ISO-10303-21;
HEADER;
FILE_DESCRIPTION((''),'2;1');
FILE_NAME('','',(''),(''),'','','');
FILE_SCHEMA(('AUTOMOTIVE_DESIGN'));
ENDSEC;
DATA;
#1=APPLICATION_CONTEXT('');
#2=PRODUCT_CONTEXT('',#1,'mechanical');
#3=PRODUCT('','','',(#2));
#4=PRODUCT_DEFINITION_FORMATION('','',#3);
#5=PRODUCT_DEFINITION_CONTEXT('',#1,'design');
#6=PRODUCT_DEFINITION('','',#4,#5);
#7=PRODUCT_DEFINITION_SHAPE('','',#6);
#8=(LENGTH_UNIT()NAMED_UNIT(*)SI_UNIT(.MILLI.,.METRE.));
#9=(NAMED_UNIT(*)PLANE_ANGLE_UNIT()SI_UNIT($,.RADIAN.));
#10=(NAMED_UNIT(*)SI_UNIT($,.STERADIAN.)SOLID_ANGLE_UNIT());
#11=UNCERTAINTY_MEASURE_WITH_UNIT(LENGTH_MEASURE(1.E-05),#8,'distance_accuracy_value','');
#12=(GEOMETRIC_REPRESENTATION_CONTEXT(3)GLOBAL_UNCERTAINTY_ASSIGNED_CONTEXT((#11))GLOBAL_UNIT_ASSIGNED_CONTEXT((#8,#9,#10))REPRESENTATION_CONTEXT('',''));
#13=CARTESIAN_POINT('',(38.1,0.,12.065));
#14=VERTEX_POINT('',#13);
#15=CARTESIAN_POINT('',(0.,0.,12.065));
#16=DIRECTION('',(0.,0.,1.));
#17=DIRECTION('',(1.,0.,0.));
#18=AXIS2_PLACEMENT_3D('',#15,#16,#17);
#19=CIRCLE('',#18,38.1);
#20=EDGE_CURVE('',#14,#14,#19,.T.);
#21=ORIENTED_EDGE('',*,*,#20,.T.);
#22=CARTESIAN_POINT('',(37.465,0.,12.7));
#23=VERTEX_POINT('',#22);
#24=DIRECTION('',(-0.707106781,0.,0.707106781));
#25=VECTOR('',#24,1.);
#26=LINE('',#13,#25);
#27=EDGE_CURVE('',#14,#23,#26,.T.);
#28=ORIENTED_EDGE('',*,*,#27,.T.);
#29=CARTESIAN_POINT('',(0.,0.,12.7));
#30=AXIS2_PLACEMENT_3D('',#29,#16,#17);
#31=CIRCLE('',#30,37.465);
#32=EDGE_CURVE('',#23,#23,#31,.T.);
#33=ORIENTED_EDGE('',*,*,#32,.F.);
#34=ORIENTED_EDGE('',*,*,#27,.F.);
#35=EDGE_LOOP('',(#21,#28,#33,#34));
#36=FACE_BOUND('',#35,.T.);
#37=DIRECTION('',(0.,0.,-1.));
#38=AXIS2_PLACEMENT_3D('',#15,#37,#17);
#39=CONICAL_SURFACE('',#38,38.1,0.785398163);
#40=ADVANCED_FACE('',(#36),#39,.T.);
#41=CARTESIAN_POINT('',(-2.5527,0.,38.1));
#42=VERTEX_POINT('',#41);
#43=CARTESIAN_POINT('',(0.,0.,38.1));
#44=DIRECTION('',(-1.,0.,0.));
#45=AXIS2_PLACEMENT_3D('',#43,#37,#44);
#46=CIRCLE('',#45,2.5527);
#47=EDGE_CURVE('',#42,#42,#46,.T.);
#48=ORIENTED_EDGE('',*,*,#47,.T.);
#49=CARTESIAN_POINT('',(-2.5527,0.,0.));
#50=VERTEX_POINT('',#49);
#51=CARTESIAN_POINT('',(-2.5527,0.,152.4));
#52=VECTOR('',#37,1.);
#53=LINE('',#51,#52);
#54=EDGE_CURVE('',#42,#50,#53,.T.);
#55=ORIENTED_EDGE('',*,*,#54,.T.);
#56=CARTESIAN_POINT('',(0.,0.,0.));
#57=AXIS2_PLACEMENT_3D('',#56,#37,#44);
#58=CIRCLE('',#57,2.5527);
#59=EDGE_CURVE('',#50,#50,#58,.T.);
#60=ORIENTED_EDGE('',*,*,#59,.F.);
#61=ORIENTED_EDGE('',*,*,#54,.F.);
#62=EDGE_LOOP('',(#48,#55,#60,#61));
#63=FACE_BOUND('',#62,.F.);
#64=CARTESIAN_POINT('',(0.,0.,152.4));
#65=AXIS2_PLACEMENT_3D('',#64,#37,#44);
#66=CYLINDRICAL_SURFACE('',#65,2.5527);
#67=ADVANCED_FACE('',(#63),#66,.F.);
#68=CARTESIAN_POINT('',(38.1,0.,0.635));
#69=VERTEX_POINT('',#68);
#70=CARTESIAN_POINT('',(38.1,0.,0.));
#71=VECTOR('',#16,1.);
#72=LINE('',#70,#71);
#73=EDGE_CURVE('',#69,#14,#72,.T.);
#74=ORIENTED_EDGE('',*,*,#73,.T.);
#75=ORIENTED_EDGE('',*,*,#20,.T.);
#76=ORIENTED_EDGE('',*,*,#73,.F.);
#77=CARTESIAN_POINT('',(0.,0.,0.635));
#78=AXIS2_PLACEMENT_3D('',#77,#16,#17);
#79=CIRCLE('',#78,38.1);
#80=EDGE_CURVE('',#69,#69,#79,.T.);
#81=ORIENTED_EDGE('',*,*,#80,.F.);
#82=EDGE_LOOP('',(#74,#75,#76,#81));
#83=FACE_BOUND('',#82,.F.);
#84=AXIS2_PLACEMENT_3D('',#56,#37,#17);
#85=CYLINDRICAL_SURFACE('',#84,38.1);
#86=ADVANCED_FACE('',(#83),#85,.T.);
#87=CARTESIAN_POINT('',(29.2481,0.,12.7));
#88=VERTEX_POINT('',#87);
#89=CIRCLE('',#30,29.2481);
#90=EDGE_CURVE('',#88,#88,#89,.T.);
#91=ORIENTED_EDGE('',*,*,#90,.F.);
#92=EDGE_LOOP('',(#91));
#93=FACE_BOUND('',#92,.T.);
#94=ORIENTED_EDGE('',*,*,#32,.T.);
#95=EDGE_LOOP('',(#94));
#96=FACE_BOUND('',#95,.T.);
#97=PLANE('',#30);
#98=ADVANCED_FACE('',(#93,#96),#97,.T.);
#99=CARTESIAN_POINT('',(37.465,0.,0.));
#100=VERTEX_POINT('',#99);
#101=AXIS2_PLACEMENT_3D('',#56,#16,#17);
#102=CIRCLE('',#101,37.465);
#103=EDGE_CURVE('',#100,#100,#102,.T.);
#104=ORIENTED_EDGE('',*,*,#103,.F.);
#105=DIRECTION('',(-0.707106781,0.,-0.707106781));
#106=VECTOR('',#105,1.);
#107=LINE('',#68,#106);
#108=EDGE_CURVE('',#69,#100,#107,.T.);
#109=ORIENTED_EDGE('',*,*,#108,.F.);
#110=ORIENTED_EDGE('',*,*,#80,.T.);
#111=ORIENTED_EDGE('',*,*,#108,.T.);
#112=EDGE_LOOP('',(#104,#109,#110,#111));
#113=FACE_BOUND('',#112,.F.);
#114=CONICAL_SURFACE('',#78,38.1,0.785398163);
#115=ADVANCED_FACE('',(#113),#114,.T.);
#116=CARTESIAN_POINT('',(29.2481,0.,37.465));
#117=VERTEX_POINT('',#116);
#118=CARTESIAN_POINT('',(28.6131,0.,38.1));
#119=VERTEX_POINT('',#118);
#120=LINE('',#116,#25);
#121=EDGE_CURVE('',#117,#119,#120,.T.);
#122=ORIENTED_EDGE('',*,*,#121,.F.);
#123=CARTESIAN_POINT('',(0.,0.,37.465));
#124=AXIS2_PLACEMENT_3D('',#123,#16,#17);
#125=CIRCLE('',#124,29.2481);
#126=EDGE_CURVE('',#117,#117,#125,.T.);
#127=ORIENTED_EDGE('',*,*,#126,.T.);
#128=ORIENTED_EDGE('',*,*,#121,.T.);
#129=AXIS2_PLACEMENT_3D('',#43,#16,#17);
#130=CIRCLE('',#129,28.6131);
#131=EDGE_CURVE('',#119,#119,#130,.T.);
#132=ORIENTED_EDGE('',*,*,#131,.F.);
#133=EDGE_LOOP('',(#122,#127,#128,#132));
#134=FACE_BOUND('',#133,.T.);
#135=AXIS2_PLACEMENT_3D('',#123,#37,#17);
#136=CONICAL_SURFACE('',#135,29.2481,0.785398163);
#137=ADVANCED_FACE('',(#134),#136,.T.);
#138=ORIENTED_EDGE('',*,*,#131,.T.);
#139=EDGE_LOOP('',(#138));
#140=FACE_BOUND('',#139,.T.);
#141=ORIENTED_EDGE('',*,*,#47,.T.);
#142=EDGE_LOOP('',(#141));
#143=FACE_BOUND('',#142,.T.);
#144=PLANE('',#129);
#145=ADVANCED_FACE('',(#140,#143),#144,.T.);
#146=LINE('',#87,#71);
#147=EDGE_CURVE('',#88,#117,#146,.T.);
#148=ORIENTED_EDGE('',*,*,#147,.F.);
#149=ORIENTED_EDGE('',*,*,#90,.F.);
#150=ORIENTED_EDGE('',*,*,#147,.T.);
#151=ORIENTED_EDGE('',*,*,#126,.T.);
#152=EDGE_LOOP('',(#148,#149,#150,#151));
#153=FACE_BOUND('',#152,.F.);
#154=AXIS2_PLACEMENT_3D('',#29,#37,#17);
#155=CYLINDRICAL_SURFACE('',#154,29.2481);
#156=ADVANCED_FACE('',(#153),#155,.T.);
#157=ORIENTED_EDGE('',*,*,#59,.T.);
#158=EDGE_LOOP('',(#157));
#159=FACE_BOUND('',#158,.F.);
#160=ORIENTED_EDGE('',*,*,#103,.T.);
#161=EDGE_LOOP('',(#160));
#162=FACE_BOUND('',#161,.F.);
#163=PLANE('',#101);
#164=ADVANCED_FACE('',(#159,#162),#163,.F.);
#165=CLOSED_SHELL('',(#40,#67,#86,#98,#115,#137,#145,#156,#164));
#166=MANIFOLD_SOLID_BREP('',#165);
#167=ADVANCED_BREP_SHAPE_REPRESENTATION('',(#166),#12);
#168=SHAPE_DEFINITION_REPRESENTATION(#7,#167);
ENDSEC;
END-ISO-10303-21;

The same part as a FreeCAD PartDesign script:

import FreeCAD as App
import Part
import Sketcher

V = App.Vector
Q = App.Units.Quantity


def edges_at(feature, points):
    """Names of the edges that pass closest to the given points."""
    edges = feature.Shape.Edges
    near = lambda p: min(range(len(edges)), key=lambda i: edges[i].distToShape(Part.Vertex(*p))[0])
    return sorted({f"Edge{near(p) + 1}" for p in points})

doc = App.newDocument("Part")
params = doc.addObject("Spreadsheet::Sheet", "Params")
for row, (alias, value) in enumerate([
    ("sketch1_diameter", "3 in"),
    ("pad1_length", "0.5 in"),
    ("sketch2_diameter", "2.303 in"),
    ("pad2_length", "1 in"),
    ("chamfer_size", "0.025 in"),
    ("sketch3_diameter", "0.201 in"),
    ("hole_diameter", "0.201 in"),
], start=1):
    params.set(f"A{row}", alias)
    params.set(f"B{row}", "=" + value)
    params.setAlias(f"B{row}", alias)

body = doc.addObject("PartDesign::Body", "Body")

sketch1 = body.newObject("Sketcher::SketchObject", "Sketch")
sketch1.AttachmentSupport = (doc.getObject("XY_Plane"), [""])
sketch1.MapMode = "FlatFace"
sketch1.addGeometry(Part.Circle(V(0, 0, 0), V(0, 0, 1), 38), False)
sketch1.addConstraint([
    Sketcher.Constraint("Coincident", 0, 3, -1, 1),
    Sketcher.Constraint("Diameter", 0, Q("3 in")),
])
sketch1.setExpression("Constraints[1]", "Params.sketch1_diameter")
pad1 = body.newObject("PartDesign::Pad", "Pad")
pad1.Profile = sketch1
pad1.setExpression("Length", "Params.pad1_length")

sketch2 = body.newObject("Sketcher::SketchObject", "Sketch001")
sketch2.AttachmentSupport = (doc.getObject("XY_Plane"), [""])
sketch2.MapMode = "FlatFace"
sketch2.AttachmentOffset = App.Placement(V(0, 0, 0.5 * 25.4), App.Rotation())
sketch2.addGeometry(Part.Circle(V(0, 0, 0), V(0, 0, 1), 29), False)
sketch2.addConstraint([
    Sketcher.Constraint("Coincident", 0, 3, -1, 1),
    Sketcher.Constraint("Diameter", 0, Q("2.303 in")),
])
sketch2.setExpression("Constraints[1]", "Params.sketch2_diameter")
pad2 = body.newObject("PartDesign::Pad", "Pad001")
pad2.Profile = sketch2
pad2.setExpression("Length", "Params.pad2_length")
doc.recompute()

chamfer = body.newObject("PartDesign::Chamfer", "Chamfer")
chamfer.Base = (pad2, edges_at(pad2, [(-29.248, 0, 38.1), (-38.1, 0, 12.7), (-38.1, 0, 0)]))
chamfer.setExpression("Size", "Params.chamfer_size")

sketch3 = body.newObject("Sketcher::SketchObject", "Sketch002")
sketch3.AttachmentSupport = (doc.getObject("XY_Plane"), [""])
sketch3.MapMode = "FlatFace"
sketch3.AttachmentOffset = App.Placement(V(0, 0, 1.5 * 25.4), App.Rotation())
sketch3.addGeometry(Part.Circle(V(0, 0, 0), V(0, 0, 1), 2.6), False)
sketch3.addConstraint([
    Sketcher.Constraint("Coincident", 0, 3, -1, 1),
    Sketcher.Constraint("Diameter", 0, Q("0.201 in")),
])
sketch3.setExpression("Constraints[1]", "Params.sketch3_diameter")
doc.recompute()
hole = body.newObject("PartDesign::Hole", "Hole")
hole.Profile = sketch3
hole.ThreadType = "None"
hole.setExpression("Diameter", "Params.hole_diameter")
hole.DepthType = "ThroughAll"

doc.recompute()
